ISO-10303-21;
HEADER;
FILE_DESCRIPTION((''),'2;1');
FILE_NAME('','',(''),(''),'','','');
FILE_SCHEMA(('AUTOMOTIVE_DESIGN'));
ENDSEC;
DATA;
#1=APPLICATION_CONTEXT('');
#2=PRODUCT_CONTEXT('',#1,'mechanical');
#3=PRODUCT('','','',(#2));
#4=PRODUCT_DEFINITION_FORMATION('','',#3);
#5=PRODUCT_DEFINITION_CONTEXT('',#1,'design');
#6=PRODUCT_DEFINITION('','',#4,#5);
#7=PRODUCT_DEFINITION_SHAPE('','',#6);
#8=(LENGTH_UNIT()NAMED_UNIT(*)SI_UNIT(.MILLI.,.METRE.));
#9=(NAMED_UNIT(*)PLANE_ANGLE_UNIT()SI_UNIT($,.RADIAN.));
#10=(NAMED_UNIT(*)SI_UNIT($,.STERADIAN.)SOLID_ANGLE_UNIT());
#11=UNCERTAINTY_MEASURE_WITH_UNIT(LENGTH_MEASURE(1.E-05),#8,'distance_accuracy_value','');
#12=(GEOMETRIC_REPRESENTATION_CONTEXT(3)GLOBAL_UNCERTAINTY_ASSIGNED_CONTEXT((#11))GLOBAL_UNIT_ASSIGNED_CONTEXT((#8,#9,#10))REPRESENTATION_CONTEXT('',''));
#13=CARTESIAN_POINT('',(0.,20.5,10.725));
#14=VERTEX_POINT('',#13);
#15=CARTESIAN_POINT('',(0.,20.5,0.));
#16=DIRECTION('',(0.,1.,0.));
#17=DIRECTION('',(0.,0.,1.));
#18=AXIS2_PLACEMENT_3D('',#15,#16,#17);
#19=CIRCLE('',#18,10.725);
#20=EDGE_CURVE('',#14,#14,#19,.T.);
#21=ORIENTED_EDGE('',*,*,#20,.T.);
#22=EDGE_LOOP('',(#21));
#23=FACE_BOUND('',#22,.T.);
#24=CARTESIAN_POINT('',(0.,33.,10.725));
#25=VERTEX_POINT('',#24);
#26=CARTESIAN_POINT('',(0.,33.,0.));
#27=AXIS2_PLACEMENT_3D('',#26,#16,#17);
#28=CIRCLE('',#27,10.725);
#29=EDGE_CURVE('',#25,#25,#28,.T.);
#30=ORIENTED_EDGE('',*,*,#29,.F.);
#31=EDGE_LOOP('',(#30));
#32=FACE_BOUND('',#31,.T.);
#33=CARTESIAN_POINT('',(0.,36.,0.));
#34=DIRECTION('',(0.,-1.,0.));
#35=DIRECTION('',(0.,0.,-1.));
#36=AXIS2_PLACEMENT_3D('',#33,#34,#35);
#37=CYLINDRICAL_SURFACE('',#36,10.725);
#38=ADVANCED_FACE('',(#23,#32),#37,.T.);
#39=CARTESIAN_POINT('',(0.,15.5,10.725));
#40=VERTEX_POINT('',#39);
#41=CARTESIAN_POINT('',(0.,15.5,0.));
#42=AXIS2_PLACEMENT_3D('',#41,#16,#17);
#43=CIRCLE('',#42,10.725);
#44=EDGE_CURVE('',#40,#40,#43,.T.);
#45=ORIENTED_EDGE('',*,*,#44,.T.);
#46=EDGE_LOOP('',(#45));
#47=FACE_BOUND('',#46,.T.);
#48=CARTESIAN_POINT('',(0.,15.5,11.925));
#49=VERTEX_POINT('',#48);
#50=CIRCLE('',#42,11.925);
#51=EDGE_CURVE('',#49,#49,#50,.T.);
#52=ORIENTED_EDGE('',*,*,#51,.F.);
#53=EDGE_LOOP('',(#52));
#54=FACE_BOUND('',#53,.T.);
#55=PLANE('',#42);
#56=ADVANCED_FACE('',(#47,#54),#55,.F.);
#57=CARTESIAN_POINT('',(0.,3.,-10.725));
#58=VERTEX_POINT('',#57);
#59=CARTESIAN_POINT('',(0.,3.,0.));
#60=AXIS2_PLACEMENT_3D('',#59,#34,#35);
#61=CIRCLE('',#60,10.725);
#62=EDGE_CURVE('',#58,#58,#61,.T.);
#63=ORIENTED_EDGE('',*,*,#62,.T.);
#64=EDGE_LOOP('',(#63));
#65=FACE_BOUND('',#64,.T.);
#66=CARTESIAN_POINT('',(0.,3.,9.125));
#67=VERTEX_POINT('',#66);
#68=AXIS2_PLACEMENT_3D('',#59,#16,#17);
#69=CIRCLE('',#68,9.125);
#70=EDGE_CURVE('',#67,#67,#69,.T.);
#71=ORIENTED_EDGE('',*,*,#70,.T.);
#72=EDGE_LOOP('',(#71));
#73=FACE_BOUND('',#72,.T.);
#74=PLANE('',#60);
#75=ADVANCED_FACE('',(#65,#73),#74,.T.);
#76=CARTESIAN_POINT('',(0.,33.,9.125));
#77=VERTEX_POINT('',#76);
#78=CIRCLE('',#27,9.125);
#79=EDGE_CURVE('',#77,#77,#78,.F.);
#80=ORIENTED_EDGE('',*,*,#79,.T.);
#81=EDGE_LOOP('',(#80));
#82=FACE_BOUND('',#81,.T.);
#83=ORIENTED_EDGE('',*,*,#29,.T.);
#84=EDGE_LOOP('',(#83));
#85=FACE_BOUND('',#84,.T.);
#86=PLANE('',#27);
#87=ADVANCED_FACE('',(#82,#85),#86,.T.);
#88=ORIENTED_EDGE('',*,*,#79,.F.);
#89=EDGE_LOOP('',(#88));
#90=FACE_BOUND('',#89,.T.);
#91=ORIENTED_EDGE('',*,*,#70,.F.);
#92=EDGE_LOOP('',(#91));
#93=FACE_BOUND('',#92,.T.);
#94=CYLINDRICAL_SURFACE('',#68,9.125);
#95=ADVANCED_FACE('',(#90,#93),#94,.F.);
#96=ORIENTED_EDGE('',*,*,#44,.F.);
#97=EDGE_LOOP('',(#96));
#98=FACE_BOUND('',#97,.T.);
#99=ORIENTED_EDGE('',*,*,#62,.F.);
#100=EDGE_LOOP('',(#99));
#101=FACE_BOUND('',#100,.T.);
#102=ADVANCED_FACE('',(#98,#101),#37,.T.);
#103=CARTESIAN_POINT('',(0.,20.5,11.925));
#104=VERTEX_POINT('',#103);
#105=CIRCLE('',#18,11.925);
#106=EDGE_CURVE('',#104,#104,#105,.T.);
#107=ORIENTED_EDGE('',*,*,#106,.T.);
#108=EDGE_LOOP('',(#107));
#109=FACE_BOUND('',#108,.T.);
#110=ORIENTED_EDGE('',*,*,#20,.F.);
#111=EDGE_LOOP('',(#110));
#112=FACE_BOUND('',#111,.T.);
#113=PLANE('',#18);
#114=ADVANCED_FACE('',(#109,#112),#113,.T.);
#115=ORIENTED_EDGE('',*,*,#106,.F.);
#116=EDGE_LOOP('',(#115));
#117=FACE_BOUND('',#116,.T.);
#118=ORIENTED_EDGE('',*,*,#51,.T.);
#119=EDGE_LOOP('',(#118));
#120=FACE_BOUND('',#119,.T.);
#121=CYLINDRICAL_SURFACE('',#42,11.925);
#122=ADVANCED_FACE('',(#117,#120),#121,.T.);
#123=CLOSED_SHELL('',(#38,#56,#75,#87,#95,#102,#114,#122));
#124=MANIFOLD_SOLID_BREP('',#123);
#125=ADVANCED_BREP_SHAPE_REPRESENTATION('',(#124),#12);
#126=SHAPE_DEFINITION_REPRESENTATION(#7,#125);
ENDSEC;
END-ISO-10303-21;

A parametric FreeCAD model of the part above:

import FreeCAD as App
import Part
import Sketcher

V = App.Vector
Q = App.Units.Quantity

doc = App.newDocument("Part")
params = doc.addObject("Spreadsheet::Sheet", "Params")
for row, (alias, value) in enumerate([
    ("sketch1_diameter", "21.45 mm"),
    ("pad1_length", "36 mm"),
    ("sketch2_diameter", "23.85 mm"),
    ("pad2_length", "2.5 mm"),
    ("pad2_length2", "2.5 mm"),
    ("sketch3_diameter", "18.25 mm"),
    ("pocket1_length", "33 mm"),
    ("sketch4_diameter", "21.45 mm"),
    ("pocket2_length", "3 mm"),
    ("sketch5_diameter", "21.45 mm"),
    ("pocket3_length", "3 mm"),
], start=1):
    params.set(f"A{row}", alias)
    params.set(f"B{row}", "=" + value)
    params.setAlias(f"B{row}", alias)

body = doc.addObject("PartDesign::Body", "Body")

# Sketch on XZ plane
sketch1 = body.newObject("Sketcher::SketchObject", "Sketch")
sketch1.AttachmentSupport = (doc.getObject("XZ_Plane"), [""])
sketch1.MapMode = "FlatFace"
sketch1.addGeometry(Part.Circle(V(0, 0, 0), V(0, 0, 1), 11), False)
sketch1.addConstraint(Sketcher.Constraint("Coincident", 0, 3, -1, 1))
sketch1.addConstraint(Sketcher.Constraint("Diameter", 0, Q("21.45 mm")))
sketch1.setExpression("Constraints[1]", "Params.sketch1_diameter")
pad1 = body.newObject("PartDesign::Pad", "Pad")
pad1.Profile = sketch1
pad1.setExpression("Length", "Params.pad1_length")
pad1.Reversed = True

# Sketch on XZ plane
sketch2 = body.newObject("Sketcher::SketchObject", "Sketch001")
sketch2.AttachmentSupport = (doc.getObject("XZ_Plane"), [""])
sketch2.MapMode = "FlatFace"
sketch2.AttachmentOffset = App.Placement(V(0, 0, -18), App.Rotation())
sketch2.addGeometry(Part.Circle(V(0, 0, 0), V(0, 0, 1), 12), False)
sketch2.addConstraint(Sketcher.Constraint("Coincident", 0, 3, -1, 1))
sketch2.addConstraint(Sketcher.Constraint("Diameter", 0, Q("23.85 mm")))
sketch2.setExpression("Constraints[1]", "Params.sketch2_diameter")
pad2 = body.newObject("PartDesign::Pad", "Pad001")
pad2.Profile = sketch2
pad2.Type = "TwoLengths"
pad2.setExpression("Length", "Params.pad2_length")
pad2.setExpression("Length2", "Params.pad2_length2")
pad2.Reversed = True

# Sketch on XZ plane
sketch3 = body.newObject("Sketcher::SketchObject", "Sketch002")
sketch3.AttachmentSupport = (doc.getObject("XZ_Plane"), [""])
sketch3.MapMode = "FlatFace"
sketch3.AttachmentOffset = App.Placement(V(0, 0, -36), App.Rotation())
sketch3.addGeometry(Part.Circle(V(0, 0, 0), V(0, 0, 1), 9), False)
sketch3.addConstraint(Sketcher.Constraint("Coincident", 0, 3, -1, 1))
sketch3.addConstraint(Sketcher.Constraint("Diameter", 0, Q("18.25 mm")))
sketch3.setExpression("Constraints[1]", "Params.sketch3_diameter")
pocket1 = body.newObject("PartDesign::Pocket", "Pocket")
pocket1.Profile = sketch3
pocket1.setExpression("Length", "Params.pocket1_length")
pocket1.Reversed = True

# Sketch on XZ plane
sketch4 = body.newObject("Sketcher::SketchObject", "Sketch003")
sketch4.AttachmentSupport = (doc.getObject("XZ_Plane"), [""])
sketch4.MapMode = "FlatFace"
sketch4.AttachmentOffset = App.Placement(V(0, 0, -33), App.Rotation())
sketch4.addGeometry(Part.Circle(V(0, 0, 0), V(0, 0, 1), 11), False)
sketch4.addConstraint(Sketcher.Constraint("Coincident", 0, 3, -1, 1))
sketch4.addConstraint(Sketcher.Constraint("Diameter", 0, Q("21.45 mm")))
sketch4.setExpression("Constraints[1]", "Params.sketch4_diameter")
pocket2 = body.newObject("PartDesign::Pocket", "Pocket001")
pocket2.Profile = sketch4
pocket2.setExpression("Length", "Params.pocket2_length")

# Sketch on XZ plane
sketch5 = body.newObject("Sketcher::SketchObject", "Sketch004")
sketch5.AttachmentSupport = (doc.getObject("XZ_Plane"), [""])
sketch5.MapMode = "FlatFace"
sketch5.addGeometry(Part.Circle(V(0, 0, 0), V(0, 0, 1), 11), False)
sketch5.addConstraint(Sketcher.Constraint("Coincident", 0, 3, -1, 1))
sketch5.addConstraint(Sketcher.Constraint("Diameter", 0, Q("21.45 mm")))
sketch5.setExpression("Constraints[1]", "Params.sketch5_diameter")
pocket3 = body.newObject("PartDesign::Pocket", "Pocket002")
pocket3.Profile = sketch5
pocket3.setExpression("Length", "Params.pocket3_length")

doc.recompute()
